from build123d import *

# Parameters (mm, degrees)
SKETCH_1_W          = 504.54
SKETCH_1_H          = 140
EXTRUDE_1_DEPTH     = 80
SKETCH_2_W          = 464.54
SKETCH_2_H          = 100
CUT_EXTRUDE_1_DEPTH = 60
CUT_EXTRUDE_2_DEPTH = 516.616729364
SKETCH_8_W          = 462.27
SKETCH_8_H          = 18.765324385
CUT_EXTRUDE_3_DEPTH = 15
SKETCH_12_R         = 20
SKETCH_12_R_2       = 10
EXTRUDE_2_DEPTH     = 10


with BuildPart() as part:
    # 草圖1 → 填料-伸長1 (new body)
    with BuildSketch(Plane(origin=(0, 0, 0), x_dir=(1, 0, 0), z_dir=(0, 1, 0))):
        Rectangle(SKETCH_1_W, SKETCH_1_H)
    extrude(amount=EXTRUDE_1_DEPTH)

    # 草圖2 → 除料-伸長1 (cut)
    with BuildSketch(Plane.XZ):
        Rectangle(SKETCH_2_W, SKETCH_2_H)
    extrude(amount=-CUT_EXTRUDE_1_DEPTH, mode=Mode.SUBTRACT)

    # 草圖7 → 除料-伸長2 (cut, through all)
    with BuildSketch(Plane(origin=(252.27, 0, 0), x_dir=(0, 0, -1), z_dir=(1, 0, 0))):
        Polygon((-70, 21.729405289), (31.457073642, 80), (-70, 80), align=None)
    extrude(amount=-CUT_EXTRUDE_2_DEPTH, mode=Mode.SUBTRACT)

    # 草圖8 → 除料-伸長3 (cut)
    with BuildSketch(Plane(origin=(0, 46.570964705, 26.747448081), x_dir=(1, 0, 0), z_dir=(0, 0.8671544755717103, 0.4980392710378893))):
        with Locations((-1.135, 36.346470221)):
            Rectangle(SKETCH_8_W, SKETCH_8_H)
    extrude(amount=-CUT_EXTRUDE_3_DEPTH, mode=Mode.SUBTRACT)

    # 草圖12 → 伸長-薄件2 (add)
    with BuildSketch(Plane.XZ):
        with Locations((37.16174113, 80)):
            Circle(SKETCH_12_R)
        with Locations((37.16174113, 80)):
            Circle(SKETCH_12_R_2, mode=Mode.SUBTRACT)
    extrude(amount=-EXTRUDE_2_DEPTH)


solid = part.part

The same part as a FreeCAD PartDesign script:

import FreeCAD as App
import Part
import Sketcher

V = App.Vector

doc = App.newDocument("Part")
params = doc.addObject("Spreadsheet::Sheet", "Params")
for row, (alias, value) in enumerate([
    ("sketch1_height", "140 mm"),
    ("sketch1_width", "504.54 mm"),
    ("pad1_length", "80 mm"),
    ("sketch2_height", "100 mm"),
    ("sketch2_width", "464.54 mm"),
    ("pocket1_length", "60 mm"),
    ("sketch3_length", "117 mm"),
    ("sketch4_width", "462.27 mm"),
    ("pocket3_length", "15 mm"),
    ("sketch5_diameter", "40 mm"),
    ("sketch5_diameter2", "20 mm"),
    ("pad2_length", "10 mm"),
], start=1):
    params.set(f"A{row}", alias)
    params.set(f"B{row}", "=" + value)
    params.setAlias(f"B{row}", alias)

body = doc.addObject("PartDesign::Body", "Body")

# Sketch on XZ plane
sketch1 = body.newObject("Sketcher::SketchObject", "Sketch")
sketch1.AttachmentSupport = (doc.getObject("XZ_Plane"), [""])
sketch1.MapMode = "FlatFace"
sketch1.addGeometry([
    Part.LineSegment(V(-252.27, -70, 0), V(-252.27, 70, 0)),
    Part.LineSegment(V(-252.27, 70, 0), V(252.27, 70, 0)),
    Part.LineSegment(V(252.27, 70, 0), V(252.27, -70, 0)),
    Part.LineSegment(V(252.27, -70, 0), V(-252.27, -70, 0)),
], False)
sketch1.addConstraint([
    Sketcher.Constraint("Coincident", 0, 2, 1, 1),
    Sketcher.Constraint("Coincident", 1, 2, 2, 1),
    Sketcher.Constraint("Coincident", 2, 2, 3, 1),
    Sketcher.Constraint("Coincident", 3, 2, 0, 1),
    Sketcher.Constraint("Vertical", 0),
    Sketcher.Constraint("Horizontal", 1),
    Sketcher.Constraint("Vertical", 2),
    Sketcher.Constraint("Horizontal", 3),
    Sketcher.Constraint("Symmetric", 0, 2, 2, 2, -1, 1),
    Sketcher.Constraint("DistanceY", 0, 1, 0, 2, 140.0),
    Sketcher.Constraint("DistanceX", 1, 1, 1, 2, 504.54),
])
sketch1.setExpression("Constraints[9]", "Params.sketch1_height")
sketch1.setExpression("Constraints[10]", "Params.sketch1_width")
pad1 = body.newObject("PartDesign::Pad", "Pad")
pad1.Profile = sketch1
pad1.setExpression("Length", "Params.pad1_length")
pad1.Reversed = True

# Sketch on XZ plane
sketch2 = body.newObject("Sketcher::SketchObject", "Sketch001")
sketch2.AttachmentSupport = (doc.getObject("XZ_Plane"), [""])
sketch2.MapMode = "FlatFace"
sketch2.addGeometry([
    Part.LineSegment(V(-232.27, 50, 0), V(-232.27, -50, 0)),
    Part.LineSegment(V(-232.27, -50, 0), V(232.27, -50, 0)),
    Part.LineSegment(V(232.27, -50, 0), V(232.27, 50, 0)),
    Part.LineSegment(V(232.27, 50, 0), V(-232.27, 50, 0)),
], False)
sketch2.addConstraint([
    Sketcher.Constraint("Coincident", 0, 2, 1, 1),
    Sketcher.Constraint("Coincident", 1, 2, 2, 1),
    Sketcher.Constraint("Coincident", 2, 2, 3, 1),
    Sketcher.Constraint("Coincident", 3, 2, 0, 1),
    Sketcher.Constraint("Vertical", 0),
    Sketcher.Constraint("Horizontal", 1),
    Sketcher.Constraint("Vertical", 2),
    Sketcher.Constraint("Horizontal", 3),
    Sketcher.Constraint("Symmetric", 0, 2, 2, 2, -1, 1),
    Sketcher.Constraint("DistanceY", 0, 2, 0, 1, 100.0),
    Sketcher.Constraint("DistanceX", 1, 1, 1, 2, 464.54),
])
sketch2.setExpression("Constraints[9]", "Params.sketch2_height")
sketch2.setExpression("Constraints[10]", "Params.sketch2_width")
pocket1 = body.newObject("PartDesign::Pocket", "Pocket")
pocket1.Profile = sketch2
pocket1.setExpression("Length", "Params.pocket1_length")

# Sketch on YZ plane
sketch3 = body.newObject("Sketcher::SketchObject", "Sketch002")
sketch3.AttachmentSupport = (doc.getObject("YZ_Plane"), [""])
sketch3.MapMode = "FlatFace"
sketch3.AttachmentOffset = App.Placement(V(0, 0, 252.27), App.Rotation())
sketch3.addGeometry([
    Part.LineSegment(V(21.729405, 70, 0), V(80, -31.457074, 0)),
    Part.LineSegment(V(80, -31.457074, 0), V(80, 70, 0)),
    Part.LineSegment(V(80, 70, 0), V(21.729405, 70, 0)),
], False)
sketch3.addConstraint([
    Sketcher.Constraint("Coincident", 0, 2, 1, 1),
    Sketcher.Constraint("Coincident", 1, 2, 2, 1),
    Sketcher.Constraint("Coincident", 2, 2, 0, 1),
    Sketcher.Constraint("Vertical", 1),
    Sketcher.Constraint("Horizontal", 2),
    Sketcher.Constraint("Distance", 0, 117.0),
    Sketcher.Constraint("DistanceX", -1, 1, 0, 2, 80.0),
    Sketcher.Constraint("DistanceY", -1, 1, 1, 2, 70.0),
    Sketcher.Constraint("DistanceX", 2, 2, 2, 1, 58.270595),
])
sketch3.setExpression("Constraints[5]", "Params.sketch3_length")
pocket2 = body.newObject("PartDesign::Pocket", "Pocket001")
pocket2.Profile = sketch3
pocket2.Type = "ThroughAll"

# Sketch on an angled plane
sketch4 = body.newObject("Sketcher::SketchObject", "Sketch003")
sketch4.Placement = App.Placement(V(0, 46.570965, 26.747448), App.Rotation(V(1, 0, 0), V(0, 0.498039271, -0.867154476), V(0, 0.867154476, 0.498039271), "ZXY"))
sketch4.addGeometry([
    Part.LineSegment(V(-232.27, 45.729132, 0), V(-232.27, 26.963808, 0)),
    Part.LineSegment(V(-232.27, 26.963808, 0), V(230, 26.963808, 0)),
    Part.LineSegment(V(230, 26.963808, 0), V(230, 45.729132, 0)),
    Part.LineSegment(V(230, 45.729132, 0), V(-232.27, 45.729132, 0)),
], False)
sketch4.addConstraint([
    Sketcher.Constraint("Coincident", 0, 2, 1, 1),
    Sketcher.Constraint("Coincident", 1, 2, 2, 1),
    Sketcher.Constraint("Coincident", 2, 2, 3, 1),
    Sketcher.Constraint("Coincident", 3, 2, 0, 1),
    Sketcher.Constraint("Vertical", 0),
    Sketcher.Constraint("Horizontal", 1),
    Sketcher.Constraint("Vertical", 2),
    Sketcher.Constraint("Horizontal", 3),
    Sketcher.Constraint("DistanceX", -1, 1, 1, 2, 230.0),
    Sketcher.Constraint("DistanceX", 1, 1, 1, 2, 462.27),
    Sketcher.Constraint("DistanceY", 0, 2, 0, 1, 18.765324),
    Sketcher.Constraint("DistanceY", -1, 1, 0, 2, 26.963808),
])
sketch4.setExpression("Constraints[9]", "Params.sketch4_width")
pocket3 = body.newObject("PartDesign::Pocket", "Pocket002")
pocket3.Profile = sketch4
pocket3.setExpression("Length", "Params.pocket3_length")

# Sketch on XZ plane
sketch5 = body.newObject("Sketcher::SketchObject", "Sketch004")
sketch5.AttachmentSupport = (doc.getObject("XZ_Plane"), [""])
sketch5.MapMode = "FlatFace"
sketch5.addGeometry([
    Part.Circle(V(37.161741, 80, 0), V(0, 0, 1), 20),
    Part.Circle(V(37.161741, 80, 0), V(0, 0, 1), 10),
], False)
sketch5.addConstraint([
    Sketcher.Constraint("Coincident", 1, 3, 0, 3),
    Sketcher.Constraint("Diameter", 0, 40.0),
    Sketcher.Constraint("Diameter", 1, 20.0),
    Sketcher.Constraint("DistanceY", -1, 1, 0, 3, 80.0),
    Sketcher.Constraint("DistanceX", -1, 1, 0, 3, 37.161741),
])
sketch5.setExpression("Constraints[1]", "Params.sketch5_diameter")
sketch5.setExpression("Constraints[2]", "Params.sketch5_diameter2")
pad2 = body.newObject("PartDesign::Pad", "Pad001")
pad2.Profile = sketch5
pad2.setExpression("Length", "Params.pad2_length")
pad2.Reversed = True

doc.recompute()
